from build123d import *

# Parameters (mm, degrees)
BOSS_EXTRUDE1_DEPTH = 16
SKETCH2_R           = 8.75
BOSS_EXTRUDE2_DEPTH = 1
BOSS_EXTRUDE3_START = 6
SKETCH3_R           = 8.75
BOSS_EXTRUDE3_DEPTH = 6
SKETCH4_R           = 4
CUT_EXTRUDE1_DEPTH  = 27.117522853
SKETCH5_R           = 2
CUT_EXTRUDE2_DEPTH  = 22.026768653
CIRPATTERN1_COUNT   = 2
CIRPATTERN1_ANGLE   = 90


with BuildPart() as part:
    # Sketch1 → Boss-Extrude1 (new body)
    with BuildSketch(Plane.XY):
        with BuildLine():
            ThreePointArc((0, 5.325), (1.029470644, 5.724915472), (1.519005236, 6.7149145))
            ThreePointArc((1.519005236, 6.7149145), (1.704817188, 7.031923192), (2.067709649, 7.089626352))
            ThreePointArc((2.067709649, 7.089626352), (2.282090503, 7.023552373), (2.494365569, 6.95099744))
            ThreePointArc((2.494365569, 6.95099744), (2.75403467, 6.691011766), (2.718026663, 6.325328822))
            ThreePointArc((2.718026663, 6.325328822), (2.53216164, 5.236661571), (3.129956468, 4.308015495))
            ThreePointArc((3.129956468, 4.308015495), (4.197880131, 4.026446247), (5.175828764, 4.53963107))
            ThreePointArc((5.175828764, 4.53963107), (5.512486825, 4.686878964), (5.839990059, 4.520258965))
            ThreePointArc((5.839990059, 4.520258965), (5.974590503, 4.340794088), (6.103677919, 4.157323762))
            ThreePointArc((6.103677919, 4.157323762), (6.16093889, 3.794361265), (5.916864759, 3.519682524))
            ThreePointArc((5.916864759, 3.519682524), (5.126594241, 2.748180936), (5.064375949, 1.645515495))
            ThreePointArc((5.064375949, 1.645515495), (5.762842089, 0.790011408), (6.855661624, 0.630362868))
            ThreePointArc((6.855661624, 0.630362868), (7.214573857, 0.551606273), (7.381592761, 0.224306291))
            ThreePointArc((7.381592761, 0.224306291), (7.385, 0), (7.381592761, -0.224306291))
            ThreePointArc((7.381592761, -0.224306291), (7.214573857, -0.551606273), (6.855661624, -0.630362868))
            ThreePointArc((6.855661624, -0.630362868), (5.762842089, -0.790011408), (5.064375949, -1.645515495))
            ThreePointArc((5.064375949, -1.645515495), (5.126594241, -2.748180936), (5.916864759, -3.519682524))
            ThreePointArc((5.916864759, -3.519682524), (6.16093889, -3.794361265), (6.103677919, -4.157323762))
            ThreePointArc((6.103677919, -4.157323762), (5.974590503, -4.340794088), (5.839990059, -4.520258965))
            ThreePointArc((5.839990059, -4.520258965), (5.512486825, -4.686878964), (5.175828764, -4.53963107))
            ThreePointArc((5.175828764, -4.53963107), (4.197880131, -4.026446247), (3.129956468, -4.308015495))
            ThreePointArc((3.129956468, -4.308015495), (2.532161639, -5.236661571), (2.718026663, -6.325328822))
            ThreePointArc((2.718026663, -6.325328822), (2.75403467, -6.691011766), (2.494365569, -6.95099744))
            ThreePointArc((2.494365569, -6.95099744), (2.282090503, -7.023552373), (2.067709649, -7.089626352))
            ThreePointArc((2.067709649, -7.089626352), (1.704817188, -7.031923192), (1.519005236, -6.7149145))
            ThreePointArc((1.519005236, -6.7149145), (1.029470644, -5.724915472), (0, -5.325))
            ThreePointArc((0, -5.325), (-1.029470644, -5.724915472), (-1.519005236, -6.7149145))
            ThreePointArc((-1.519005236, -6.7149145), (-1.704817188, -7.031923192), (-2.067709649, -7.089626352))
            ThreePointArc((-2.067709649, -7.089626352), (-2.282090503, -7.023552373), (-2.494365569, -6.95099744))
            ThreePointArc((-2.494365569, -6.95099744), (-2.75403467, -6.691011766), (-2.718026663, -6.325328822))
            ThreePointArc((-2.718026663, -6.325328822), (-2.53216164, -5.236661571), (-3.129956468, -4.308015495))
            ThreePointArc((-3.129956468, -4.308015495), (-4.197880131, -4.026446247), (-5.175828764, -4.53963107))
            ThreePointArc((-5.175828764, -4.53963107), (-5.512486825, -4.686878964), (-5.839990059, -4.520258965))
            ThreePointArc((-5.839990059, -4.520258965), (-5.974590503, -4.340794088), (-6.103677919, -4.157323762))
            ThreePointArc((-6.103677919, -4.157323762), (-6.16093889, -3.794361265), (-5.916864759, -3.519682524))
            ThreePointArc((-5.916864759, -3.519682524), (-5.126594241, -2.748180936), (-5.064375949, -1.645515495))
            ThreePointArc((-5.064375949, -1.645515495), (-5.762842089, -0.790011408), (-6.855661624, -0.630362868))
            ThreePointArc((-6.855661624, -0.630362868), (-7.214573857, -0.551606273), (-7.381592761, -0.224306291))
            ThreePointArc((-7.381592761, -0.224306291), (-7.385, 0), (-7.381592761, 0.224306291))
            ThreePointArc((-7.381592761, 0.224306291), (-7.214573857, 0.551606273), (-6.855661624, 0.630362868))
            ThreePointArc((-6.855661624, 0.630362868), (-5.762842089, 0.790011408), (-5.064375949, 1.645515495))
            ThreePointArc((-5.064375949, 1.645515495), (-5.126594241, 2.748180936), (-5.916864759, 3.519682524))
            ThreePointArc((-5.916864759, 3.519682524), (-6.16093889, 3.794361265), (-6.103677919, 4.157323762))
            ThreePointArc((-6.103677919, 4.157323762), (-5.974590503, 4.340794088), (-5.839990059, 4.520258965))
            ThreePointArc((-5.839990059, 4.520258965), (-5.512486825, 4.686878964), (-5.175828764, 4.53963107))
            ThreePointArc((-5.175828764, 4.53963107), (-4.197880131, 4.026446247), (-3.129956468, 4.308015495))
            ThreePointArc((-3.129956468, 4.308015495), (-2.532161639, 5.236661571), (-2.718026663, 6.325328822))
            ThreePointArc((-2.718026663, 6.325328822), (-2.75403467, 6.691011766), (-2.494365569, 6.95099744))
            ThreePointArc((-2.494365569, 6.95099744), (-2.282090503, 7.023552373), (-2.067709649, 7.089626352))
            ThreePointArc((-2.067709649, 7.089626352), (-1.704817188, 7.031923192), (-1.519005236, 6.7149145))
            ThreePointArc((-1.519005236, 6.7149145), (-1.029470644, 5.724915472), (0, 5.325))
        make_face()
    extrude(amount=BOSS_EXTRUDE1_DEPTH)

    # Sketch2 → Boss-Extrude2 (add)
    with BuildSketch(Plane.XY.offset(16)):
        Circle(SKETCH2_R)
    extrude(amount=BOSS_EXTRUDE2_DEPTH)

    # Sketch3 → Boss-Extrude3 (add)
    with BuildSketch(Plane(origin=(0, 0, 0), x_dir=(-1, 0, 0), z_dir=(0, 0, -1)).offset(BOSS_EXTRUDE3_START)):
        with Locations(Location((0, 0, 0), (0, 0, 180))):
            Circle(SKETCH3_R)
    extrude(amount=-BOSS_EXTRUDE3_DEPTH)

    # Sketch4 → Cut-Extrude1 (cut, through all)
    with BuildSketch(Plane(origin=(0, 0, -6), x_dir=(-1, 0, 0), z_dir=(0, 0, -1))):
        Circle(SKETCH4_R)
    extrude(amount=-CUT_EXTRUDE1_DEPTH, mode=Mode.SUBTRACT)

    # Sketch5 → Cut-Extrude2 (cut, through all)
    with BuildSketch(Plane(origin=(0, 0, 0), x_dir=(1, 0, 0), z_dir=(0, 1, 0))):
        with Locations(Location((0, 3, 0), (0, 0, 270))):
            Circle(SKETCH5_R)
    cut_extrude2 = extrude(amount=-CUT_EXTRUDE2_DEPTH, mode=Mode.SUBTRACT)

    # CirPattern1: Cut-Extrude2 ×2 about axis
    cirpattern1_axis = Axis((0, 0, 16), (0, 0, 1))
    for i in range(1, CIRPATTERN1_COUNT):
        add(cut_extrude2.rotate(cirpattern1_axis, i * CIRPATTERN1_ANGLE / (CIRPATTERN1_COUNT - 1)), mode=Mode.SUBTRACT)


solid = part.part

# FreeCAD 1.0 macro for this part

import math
import FreeCAD as App
import Part
import Sketcher

V = App.Vector

doc = App.newDocument("Part")
params = doc.addObject("Spreadsheet::Sheet", "Params")
for row, (alias, value) in enumerate([
    ("sketch1_radius", "0.43 mm"),
    ("pad1_length", "16 mm"),
    ("sketch2_diameter", "17.5 mm"),
    ("pad2_length", "1 mm"),
    ("sketch3_diameter", "17.5 mm"),
    ("pad3_length", "6 mm"),
    ("sketch4_diameter", "8 mm"),
    ("sketch5_diameter", "4 mm"),
], start=1):
    params.set(f"A{row}", alias)
    params.set(f"B{row}", "=" + value)
    params.setAlias(f"B{row}", alias)

body = doc.addObject("PartDesign::Body", "Body")

# Sketch on XY plane
sketch1 = body.newObject("Sketcher::SketchObject", "Sketch")
sketch1.AttachmentSupport = (doc.getObject("XY_Plane"), [""])
sketch1.MapMode = "FlatFace"
sketch1.addGeometry(Part.ArcOfCircle(Part.Circle(V(0, 6.85, 0), V(0, 0, 1), 1.52), math.radians(-90), math.radians(-5)), False)
sketch1.addGeometry(Part.ArcOfCircle(Part.Circle(V(0, 6.85, 0), V(0, 0, 1), 1.52), math.radians(-175), math.radians(-90)), False)
sketch1.addGeometry(Part.ArcOfCircle(Part.Circle(V(-1.95, 6.68, 0), V(0, 0, 1), 0.43), math.radians(5), math.radians(106)), False)
sketch1.addGeometry(Part.ArcOfCircle(Part.Circle(V(0, 0, 0), V(0, 0, 1), 7.39), math.radians(106.26), math.radians(109.74)), False)
sketch1.addGeometry(Part.ArcOfCircle(Part.Circle(V(-2.35, 6.55, 0), V(0, 0, 1), 0.43), math.radians(110), math.radians(211)), False)
sketch1.addGeometry(Part.ArcOfCircle(Part.Circle(V(-4.03, 5.54, 0), V(0, 0, 1), 1.52), math.radians(-54), math.radians(31)), False)
sketch1.addGeometry(Part.ArcOfCircle(Part.Circle(V(-4.03, 5.54, 0), V(0, 0, 1), 1.53), math.radians(-139), math.radians(-54)), False)
sketch1.addGeometry(Part.ArcOfCircle(Part.Circle(V(-5.5, 4.26, 0), V(0, 0, 1), 0.43), math.radians(41), math.radians(142)), False)
sketch1.addGeometry(Part.ArcOfCircle(Part.Circle(V(0, 0, 0), V(0, 0, 1), 7.39), math.radians(142.26), math.radians(145.74)), False)
sketch1.addGeometry(Part.ArcOfCircle(Part.Circle(V(-5.75, 3.92, 0), V(0, 0, 1), 0.43), math.radians(146), math.radians(247)), False)
sketch1.addGeometry(Part.ArcOfCircle(Part.Circle(V(-6.51, 2.12, 0), V(0, 0, 1), 1.52), math.radians(-18), math.radians(67)), False)
sketch1.addGeometry(Part.ArcOfCircle(Part.Circle(V(-6.51, 2.12, 0), V(0, 0, 1), 1.52), math.radians(-103), math.radians(-18)), False)
sketch1.addGeometry(Part.ArcOfCircle(Part.Circle(V(-6.95, 0.21, 0), V(0, 0, 1), 0.43), math.radians(77), math.radians(178)), False)
sketch1.addGeometry(Part.ArcOfCircle(Part.Circle(V(0, 0, 0), V(0, 0, 1), 7.39), math.radians(178.26), math.radians(181.74)), False)
sketch1.addGeometry(Part.ArcOfCircle(Part.Circle(V(-6.95, -0.21, 0), V(0, 0, 1), 0.43), math.radians(-178), math.radians(-77)), False)
sketch1.addGeometry(Part.ArcOfCircle(Part.Circle(V(-6.51, -2.12, 0), V(0, 0, 1), 1.52), math.radians(18), math.radians(103)), False)
sketch1.addGeometry(Part.ArcOfCircle(Part.Circle(V(-6.51, -2.12, 0), V(0, 0, 1), 1.52), math.radians(-67), math.radians(18)), False)
sketch1.addGeometry(Part.ArcOfCircle(Part.Circle(V(-5.75, -3.92, 0), V(0, 0, 1), 0.43), math.radians(113), math.radians(214)), False)
sketch1.addGeometry(Part.ArcOfCircle(Part.Circle(V(0, 0, 0), V(0, 0, 1), 7.39), math.radians(-145.74), math.radians(-142.26)), False)
sketch1.addGeometry(Part.ArcOfCircle(Part.Circle(V(-5.5, -4.26, 0), V(0, 0, 1), 0.43), math.radians(-142), math.radians(-41)), False)
sketch1.addGeometry(Part.ArcOfCircle(Part.Circle(V(-4.03, -5.54, 0), V(0, 0, 1), 1.53), math.radians(54), math.radians(139)), False)
sketch1.addGeometry(Part.ArcOfCircle(Part.Circle(V(-4.03, -5.54, 0), V(0, 0, 1), 1.53), math.radians(-31), math.radians(54)), False)
sketch1.addGeometry(Part.ArcOfCircle(Part.Circle(V(-2.35, -6.55, 0), V(0, 0, 1), 0.43), math.radians(149), math.radians(250)), False)
sketch1.addGeometry(Part.ArcOfCircle(Part.Circle(V(0, 0, 0), V(0, 0, 1), 7.39), math.radians(-109.74), math.radians(-106.26)), False)
sketch1.addGeometry(Part.ArcOfCircle(Part.Circle(V(-1.95, -6.68, 0), V(0, 0, 1), 0.43), math.radians(-106), math.radians(-5)), False)
sketch1.addGeometry(Part.ArcOfCircle(Part.Circle(V(0, -6.85, 0), V(0, 0, 1), 1.52), math.radians(90), math.radians(175)), False)
sketch1.addGeometry(Part.ArcOfCircle(Part.Circle(V(0, -6.85, 0), V(0, 0, 1), 1.52), math.radians(5), math.radians(90)), False)
sketch1.addGeometry(Part.ArcOfCircle(Part.Circle(V(1.95, -6.68, 0), V(0, 0, 1), 0.43), math.radians(-175), math.radians(-74)), False)
sketch1.addGeometry(Part.ArcOfCircle(Part.Circle(V(0, 0, 0), V(0, 0, 1), 7.39), math.radians(-73.74), math.radians(-70.26)), False)
sketch1.addGeometry(Part.ArcOfCircle(Part.Circle(V(2.35, -6.55, 0), V(0, 0, 1), 0.43), math.radians(-70), math.radians(31)), False)
sketch1.addGeometry(Part.ArcOfCircle(Part.Circle(V(4.03, -5.54, 0), V(0, 0, 1), 1.52), math.radians(126), math.radians(211)), False)
sketch1.addGeometry(Part.ArcOfCircle(Part.Circle(V(4.03, -5.54, 0), V(0, 0, 1), 1.53), math.radians(41), math.radians(126)), False)
sketch1.addGeometry(Part.ArcOfCircle(Part.Circle(V(5.5, -4.26, 0), V(0, 0, 1), 0.43), math.radians(-139), math.radians(-38)), False)
sketch1.addGeometry(Part.ArcOfCircle(Part.Circle(V(0, 0, 0), V(0, 0, 1), 7.39), math.radians(-37.74), math.radians(-34.26)), False)
sketch1.addGeometry(Part.ArcOfCircle(Part.Circle(V(5.75, -3.92, 0), V(0, 0, 1), 0.43), math.radians(-34), math.radians(67)), False)
sketch1.addGeometry(Part.ArcOfCircle(Part.Circle(V(6.51, -2.12, 0), V(0, 0, 1), 1.52), math.radians(162), math.radians(247)), False)
sketch1.addGeometry(Part.ArcOfCircle(Part.Circle(V(6.51, -2.12, 0), V(0, 0, 1), 1.52), math.radians(77), math.radians(162)), False)
sketch1.addGeometry(Part.ArcOfCircle(Part.Circle(V(6.95, -0.21, 0), V(0, 0, 1), 0.43), math.radians(-103), math.radians(-2)), False)
sketch1.addGeometry(Part.ArcOfCircle(Part.Circle(V(0, 0, 0), V(0, 0, 1), 7.39), math.radians(-1.74), math.radians(1.74)), False)
sketch1.addGeometry(Part.ArcOfCircle(Part.Circle(V(6.95, 0.21, 0), V(0, 0, 1), 0.43), math.radians(2), math.radians(103)), False)
sketch1.addGeometry(Part.ArcOfCircle(Part.Circle(V(6.51, 2.12, 0), V(0, 0, 1), 1.52), math.radians(-162), math.radians(-77)), False)
sketch1.addGeometry(Part.ArcOfCircle(Part.Circle(V(6.51, 2.12, 0), V(0, 0, 1), 1.52), math.radians(113), math.radians(198)), False)
sketch1.addGeometry(Part.ArcOfCircle(Part.Circle(V(5.75, 3.92, 0), V(0, 0, 1), 0.43), math.radians(-67), math.radians(34)), False)
sketch1.addGeometry(Part.ArcOfCircle(Part.Circle(V(0, 0, 0), V(0, 0, 1), 7.39), math.radians(34.26), math.radians(37.74)), False)
sketch1.addGeometry(Part.ArcOfCircle(Part.Circle(V(5.5, 4.26, 0), V(0, 0, 1), 0.43), math.radians(38), math.radians(139)), False)
sketch1.addGeometry(Part.ArcOfCircle(Part.Circle(V(4.03, 5.54, 0), V(0, 0, 1), 1.53), math.radians(-126), math.radians(-41)), False)
sketch1.addGeometry(Part.ArcOfCircle(Part.Circle(V(4.03, 5.54, 0), V(0, 0, 1), 1.53), math.radians(149), math.radians(234)), False)
sketch1.addGeometry(Part.ArcOfCircle(Part.Circle(V(2.35, 6.55, 0), V(0, 0, 1), 0.43), math.radians(-31), math.radians(70)), False)
sketch1.addGeometry(Part.ArcOfCircle(Part.Circle(V(0, 0, 0), V(0, 0, 1), 7.39), math.radians(70.26), math.radians(73.74)), False)
sketch1.addGeometry(Part.ArcOfCircle(Part.Circle(V(1.95, 6.68, 0), V(0, 0, 1), 0.43), math.radians(74), math.radians(175)), False)
sketch1.addConstraint(Sketcher.Constraint("Tangent", 0, 1, 1, 2))
sketch1.addConstraint(Sketcher.Constraint("Tangent", 1, 1, 2, 1))
sketch1.addConstraint(Sketcher.Constraint("Tangent", 2, 2, 3, 1))
sketch1.addConstraint(Sketcher.Constraint("Tangent", 3, 2, 4, 1))
sketch1.addConstraint(Sketcher.Constraint("Tangent", 4, 2, 5, 2))
sketch1.addConstraint(Sketcher.Constraint("Tangent", 5, 1, 6, 2))
sketch1.addConstraint(Sketcher.Constraint("Tangent", 6, 1, 7, 1))
sketch1.addConstraint(Sketcher.Constraint("Tangent", 7, 2, 8, 1))
sketch1.addConstraint(Sketcher.Constraint("Tangent", 8, 2, 9, 1))
sketch1.addConstraint(Sketcher.Constraint("Tangent", 9, 2, 10, 2))
sketch1.addConstraint(Sketcher.Constraint("Tangent", 10, 1, 11, 2))
sketch1.addConstraint(Sketcher.Constraint("Tangent", 11, 1, 12, 1))
sketch1.addConstraint(Sketcher.Constraint("Tangent", 12, 2, 13, 1))
sketch1.addConstraint(Sketcher.Constraint("Tangent", 13, 2, 14, 1))
sketch1.addConstraint(Sketcher.Constraint("Tangent", 14, 2, 15, 2))
sketch1.addConstraint(Sketcher.Constraint("Tangent", 15, 1, 16, 2))
sketch1.addConstraint(Sketcher.Constraint("Tangent", 16, 1, 17, 1))
sketch1.addConstraint(Sketcher.Constraint("Tangent", 17, 2, 18, 1))
sketch1.addConstraint(Sketcher.Constraint("Tangent", 18, 2, 19, 1))
sketch1.addConstraint(Sketcher.Constraint("Tangent", 19, 2, 20, 2))
sketch1.addConstraint(Sketcher.Constraint("Tangent", 20, 1, 21, 2))
sketch1.addConstraint(Sketcher.Constraint("Tangent", 21, 1, 22, 1))
sketch1.addConstraint(Sketcher.Constraint("Tangent", 22, 2, 23, 1))
sketch1.addConstraint(Sketcher.Constraint("Tangent", 23, 2, 24, 1))
sketch1.addConstraint(Sketcher.Constraint("Tangent", 24, 2, 25, 2))
sketch1.addConstraint(Sketcher.Constraint("Tangent", 25, 1, 26, 2))
sketch1.addConstraint(Sketcher.Constraint("Tangent", 26, 1, 27, 1))
sketch1.addConstraint(Sketcher.Constraint("Tangent", 27, 2, 28, 1))
sketch1.addConstraint(Sketcher.Constraint("Tangent", 28, 2, 29, 1))
sketch1.addConstraint(Sketcher.Constraint("Tangent", 29, 2, 30, 2))
sketch1.addConstraint(Sketcher.Constraint("Tangent", 30, 1, 31, 2))
sketch1.addConstraint(Sketcher.Constraint("Tangent", 31, 1, 32, 1))
sketch1.addConstraint(Sketcher.Constraint("Tangent", 32, 2, 33, 1))
sketch1.addConstraint(Sketcher.Constraint("Tangent", 33, 2, 34, 1))
sketch1.addConstraint(Sketcher.Constraint("Tangent", 34, 2, 35, 2))
sketch1.addConstraint(Sketcher.Constraint("Tangent", 35, 1, 36, 2))
sketch1.addConstraint(Sketcher.Constraint("Tangent", 36, 1, 37, 1))
sketch1.addConstraint(Sketcher.Constraint("Tangent", 37, 2, 38, 1))
sketch1.addConstraint(Sketcher.Constraint("Tangent", 38, 2, 39, 1))
sketch1.addConstraint(Sketcher.Constraint("Tangent", 39, 2, 40, 2))
sketch1.addConstraint(Sketcher.Constraint("Tangent", 40, 1, 41, 2))
sketch1.addConstraint(Sketcher.Constraint("Tangent", 41, 1, 42, 1))
sketch1.addConstraint(Sketcher.Constraint("Tangent", 42, 2, 43, 1))
sketch1.addConstraint(Sketcher.Constraint("Tangent", 43, 2, 44, 1))
sketch1.addConstraint(Sketcher.Constraint("Tangent", 44, 2, 45, 2))
sketch1.addConstraint(Sketcher.Constraint("Tangent", 45, 1, 46, 2))
sketch1.addConstraint(Sketcher.Constraint("Tangent", 46, 1, 47, 1))
sketch1.addConstraint(Sketcher.Constraint("Tangent", 47, 2, 48, 1))
sketch1.addConstraint(Sketcher.Constraint("Tangent", 48, 2, 49, 1))
sketch1.addConstraint(Sketcher.Constraint("Tangent", 49, 2, 0, 2))
sketch1.addConstraint(Sketcher.Constraint("Coincident", 3, 3, -1, 1))
sketch1.addConstraint(Sketcher.Constraint("Coincident", 8, 3, -1, 1))
sketch1.addConstraint(Sketcher.Constraint("Coincident", 13, 3, -1, 1))
sketch1.addConstraint(Sketcher.Constraint("Coincident", 18, 3, -1, 1))
sketch1.addConstraint(Sketcher.Constraint("Coincident", 23, 3, -1, 1))
sketch1.addConstraint(Sketcher.Constraint("Coincident", 28, 3, -1, 1))
sketch1.addConstraint(Sketcher.Constraint("Coincident", 33, 3, -1, 1))
sketch1.addConstraint(Sketcher.Constraint("Coincident", 38, 3, -1, 1))
sketch1.addConstraint(Sketcher.Constraint("Coincident", 43, 3, -1, 1))
sketch1.addConstraint(Sketcher.Constraint("Coincident", 48, 3, -1, 1))
sketch1.addConstraint(Sketcher.Constraint("Equal", 0, 1))
sketch1.addConstraint(Sketcher.Constraint("Equal", 2, 4))
sketch1.addConstraint(Sketcher.Constraint("Equal", 1, 5))
sketch1.addConstraint(Sketcher.Constraint("Equal", 5, 6))
sketch1.addConstraint(Sketcher.Constraint("Equal", 4, 7))
sketch1.addConstraint(Sketcher.Constraint("Equal", 3, 8))
sketch1.addConstraint(Sketcher.Constraint("Equal", 7, 9))
sketch1.addConstraint(Sketcher.Constraint("Equal", 6, 10))
sketch1.addConstraint(Sketcher.Constraint("Equal", 10, 11))
sketch1.addConstraint(Sketcher.Constraint("Equal", 9, 12))
sketch1.addConstraint(Sketcher.Constraint("Equal", 8, 13))
sketch1.addConstraint(Sketcher.Constraint("Equal", 12, 14))
sketch1.addConstraint(Sketcher.Constraint("Equal", 11, 15))
sketch1.addConstraint(Sketcher.Constraint("Equal", 15, 16))
sketch1.addConstraint(Sketcher.Constraint("Equal", 14, 17))
sketch1.addConstraint(Sketcher.Constraint("Equal", 13, 18))
sketch1.addConstraint(Sketcher.Constraint("Equal", 17, 19))
sketch1.addConstraint(Sketcher.Constraint("Equal", 16, 20))
sketch1.addConstraint(Sketcher.Constraint("Equal", 20, 21))
sketch1.addConstraint(Sketcher.Constraint("Equal", 19, 22))
sketch1.addConstraint(Sketcher.Constraint("Equal", 18, 23))
sketch1.addConstraint(Sketcher.Constraint("Equal", 22, 24))
sketch1.addConstraint(Sketcher.Constraint("Equal", 21, 25))
sketch1.addConstraint(Sketcher.Constraint("Equal", 25, 26))
sketch1.addConstraint(Sketcher.Constraint("Equal", 24, 27))
sketch1.addConstraint(Sketcher.Constraint("Equal", 23, 28))
sketch1.addConstraint(Sketcher.Constraint("Equal", 27, 29))
sketch1.addConstraint(Sketcher.Constraint("Equal", 26, 30))
sketch1.addConstraint(Sketcher.Constraint("Equal", 30, 31))
sketch1.addConstraint(Sketcher.Constraint("Equal", 29, 32))
sketch1.addConstraint(Sketcher.Constraint("Equal", 28, 33))
sketch1.addConstraint(Sketcher.Constraint("Equal", 32, 34))
sketch1.addConstraint(Sketcher.Constraint("Equal", 31, 35))
sketch1.addConstraint(Sketcher.Constraint("Equal", 35, 36))
sketch1.addConstraint(Sketcher.Constraint("Equal", 34, 37))
sketch1.addConstraint(Sketcher.Constraint("Equal", 33, 38))
sketch1.addConstraint(Sketcher.Constraint("Equal", 37, 39))
sketch1.addConstraint(Sketcher.Constraint("Equal", 36, 40))
sketch1.addConstraint(Sketcher.Constraint("Equal", 40, 41))
sketch1.addConstraint(Sketcher.Constraint("Equal", 39, 42))
sketch1.addConstraint(Sketcher.Constraint("Equal", 38, 43))
sketch1.addConstraint(Sketcher.Constraint("Equal", 42, 44))
sketch1.addConstraint(Sketcher.Constraint("Equal", 41, 45))
sketch1.addConstraint(Sketcher.Constraint("Equal", 45, 46))
sketch1.addConstraint(Sketcher.Constraint("Equal", 44, 47))
sketch1.addConstraint(Sketcher.Constraint("Equal", 43, 48))
sketch1.addConstraint(Sketcher.Constraint("Equal", 47, 49))
sketch1.addConstraint(Sketcher.Constraint("Symmetric", 0, 3, 25, 3, -1, 1))
sketch1.addConstraint(Sketcher.Constraint("Symmetric", 5, 3, 30, 3, -1, 1))
sketch1.addConstraint(Sketcher.Constraint("Symmetric", 10, 3, 35, 3, -1, 1))
sketch1.addConstraint(Sketcher.Constraint("Symmetric", 15, 3, 40, 3, -1, 1))
sketch1.addConstraint(Sketcher.Constraint("Symmetric", 20, 3, 45, 3, -1, 1))
sketch1.addConstraint(Sketcher.Constraint("Symmetric", 20, 3, 30, 3, -2))
sketch1.addConstraint(Sketcher.Constraint("Symmetric", 15, 3, 35, 3, -2))
sketch1.addConstraint(Sketcher.Constraint("PointOnObject", 0, 3, -2))
sketch1.addConstraint(Sketcher.Constraint("PointOnObject", 0, 1, -2))
sketch1.addConstraint(Sketcher.Constraint("PointOnObject", 25, 1, -2))
sketch1.addConstraint(Sketcher.Constraint("Horizontal", 20, 1, 30, 1))
sketch1.addConstraint(Sketcher.Constraint("Horizontal", 15, 1, 35, 1))
sketch1.addConstraint(Sketcher.Constraint("Horizontal", 10, 1, 40, 1))
sketch1.addConstraint(Sketcher.Constraint("Horizontal", 5, 1, 45, 1))
sketch1.addConstraint(Sketcher.Constraint("Vertical", 10, 1, 15, 1))
sketch1.addConstraint(Sketcher.Constraint("Vertical", 5, 1, 20, 1))
sketch1.addConstraint(Sketcher.Constraint("Radius", 2, 0.43))
sketch1.addConstraint(Sketcher.Constraint("Radius", 0, 1.525))
sketch1.addConstraint(Sketcher.Constraint("Radius", 3, 7.385))
sketch1.addConstraint(Sketcher.Constraint("DistanceY", -1, 1, 0, 3, 6.85))
sketch1.addConstraint(Sketcher.Constraint("DistanceX", 4, 3, -1, 1, 2.349128))
sketch1.addConstraint(Sketcher.Constraint("DistanceX", 5, 3, -1, 1, 4.026329))
sketch1.addConstraint(Sketcher.Constraint("DistanceY", -1, 1, 9, 3, 3.915259))
sketch1.addConstraint(Sketcher.Constraint("DistanceX", 11, 1, -1, 1, 6.855662))
sketch1.addConstraint(Sketcher.Constraint("DistanceX", 5, 1, -1, 1, 3.129956))
sketch1.addConstraint(Sketcher.Constraint("DistanceX", 10, 1, -1, 1, 5.064376))
sketch1.setExpression("Constraints[123]", "Params.sketch1_radius")
pad1 = body.newObject("PartDesign::Pad", "Pad")
pad1.Profile = sketch1
pad1.setExpression("Length", "Params.pad1_length")

# Sketch on XY plane
sketch2 = body.newObject("Sketcher::SketchObject", "Sketch001")
sketch2.AttachmentSupport = (doc.getObject("XY_Plane"), [""])
sketch2.MapMode = "FlatFace"
sketch2.AttachmentOffset = App.Placement(V(0, 0, 16), App.Rotation())
sketch2.addGeometry(Part.Circle(V(0, 0, 0), V(0, 0, 1), 9), False)
sketch2.addConstraint(Sketcher.Constraint("Coincident", 0, 3, -1, 1))
sketch2.addConstraint(Sketcher.Constraint("Diameter", 0, 17.5))
sketch2.setExpression("Constraints[1]", "Params.sketch2_diameter")
pad2 = body.newObject("PartDesign::Pad", "Pad001")
pad2.Profile = sketch2
pad2.setExpression("Length", "Params.pad2_length")

# Sketch on XY plane
sketch3 = body.newObject("Sketcher::SketchObject", "Sketch002")
sketch3.AttachmentSupport = (doc.getObject("XY_Plane"), [""])
sketch3.MapMode = "FlatFace"
sketch3.AttachmentOffset = App.Placement(V(0, 0, -6), App.Rotation())
sketch3.addGeometry(Part.Circle(V(0, 0, 0), V(0, 0, 1), 9), False)
sketch3.addConstraint(Sketcher.Constraint("Coincident", 0, 3, -1, 1))
sketch3.addConstraint(Sketcher.Constraint("Diameter", 0, 17.5))
sketch3.setExpression("Constraints[1]", "Params.sketch3_diameter")
pad3 = body.newObject("PartDesign::Pad", "Pad002")
pad3.Profile = sketch3
pad3.setExpression("Length", "Params.pad3_length")

# Sketch on XY plane
sketch4 = body.newObject("Sketcher::SketchObject", "Sketch003")
sketch4.AttachmentSupport = (doc.getObject("XY_Plane"), [""])
sketch4.MapMode = "FlatFace"
sketch4.AttachmentOffset = App.Placement(V(0, 0, -6), App.Rotation())
sketch4.addGeometry(Part.Circle(V(0, 0, 0), V(0, 0, 1), 4), False)
sketch4.addConstraint(Sketcher.Constraint("Coincident", 0, 3, -1, 1))
sketch4.addConstraint(Sketcher.Constraint("Diameter", 0, 8.0))
sketch4.setExpression("Constraints[1]", "Params.sketch4_diameter")
pocket1 = body.newObject("PartDesign::Pocket", "Pocket")
pocket1.Profile = sketch4
pocket1.Type = "ThroughAll"
pocket1.Reversed = True

# Sketch on XZ plane
sketch5 = body.newObject("Sketcher::SketchObject", "Sketch004")
sketch5.AttachmentSupport = (doc.getObject("XZ_Plane"), [""])
sketch5.MapMode = "FlatFace"
sketch5.addGeometry(Part.Circle(V(0, -3, 0), V(0, 0, 1), 2), False)
sketch5.addConstraint(Sketcher.Constraint("PointOnObject", 0, 3, -2))
sketch5.addConstraint(Sketcher.Constraint("Diameter", 0, 4.0))
sketch5.addConstraint(Sketcher.Constraint("DistanceY", 0, 3, -1, 1, 3.0))
sketch5.setExpression("Constraints[1]", "Params.sketch5_diameter")
pocket2 = body.newObject("PartDesign::Pocket", "Pocket001")
pocket2.Profile = sketch5
pocket2.Type = "ThroughAll"
pocket2.Reversed = True
doc.recompute()

polarpattern = body.newObject("PartDesign::PolarPattern", "PolarPattern")
polarpattern.Originals = [pocket2]
polarpattern.Axis = (doc.getObject("Z_Axis"), [""])
polarpattern.Angle = 90
polarpattern.Occurrences = 2
body.Tip = polarpattern

doc.recompute()
